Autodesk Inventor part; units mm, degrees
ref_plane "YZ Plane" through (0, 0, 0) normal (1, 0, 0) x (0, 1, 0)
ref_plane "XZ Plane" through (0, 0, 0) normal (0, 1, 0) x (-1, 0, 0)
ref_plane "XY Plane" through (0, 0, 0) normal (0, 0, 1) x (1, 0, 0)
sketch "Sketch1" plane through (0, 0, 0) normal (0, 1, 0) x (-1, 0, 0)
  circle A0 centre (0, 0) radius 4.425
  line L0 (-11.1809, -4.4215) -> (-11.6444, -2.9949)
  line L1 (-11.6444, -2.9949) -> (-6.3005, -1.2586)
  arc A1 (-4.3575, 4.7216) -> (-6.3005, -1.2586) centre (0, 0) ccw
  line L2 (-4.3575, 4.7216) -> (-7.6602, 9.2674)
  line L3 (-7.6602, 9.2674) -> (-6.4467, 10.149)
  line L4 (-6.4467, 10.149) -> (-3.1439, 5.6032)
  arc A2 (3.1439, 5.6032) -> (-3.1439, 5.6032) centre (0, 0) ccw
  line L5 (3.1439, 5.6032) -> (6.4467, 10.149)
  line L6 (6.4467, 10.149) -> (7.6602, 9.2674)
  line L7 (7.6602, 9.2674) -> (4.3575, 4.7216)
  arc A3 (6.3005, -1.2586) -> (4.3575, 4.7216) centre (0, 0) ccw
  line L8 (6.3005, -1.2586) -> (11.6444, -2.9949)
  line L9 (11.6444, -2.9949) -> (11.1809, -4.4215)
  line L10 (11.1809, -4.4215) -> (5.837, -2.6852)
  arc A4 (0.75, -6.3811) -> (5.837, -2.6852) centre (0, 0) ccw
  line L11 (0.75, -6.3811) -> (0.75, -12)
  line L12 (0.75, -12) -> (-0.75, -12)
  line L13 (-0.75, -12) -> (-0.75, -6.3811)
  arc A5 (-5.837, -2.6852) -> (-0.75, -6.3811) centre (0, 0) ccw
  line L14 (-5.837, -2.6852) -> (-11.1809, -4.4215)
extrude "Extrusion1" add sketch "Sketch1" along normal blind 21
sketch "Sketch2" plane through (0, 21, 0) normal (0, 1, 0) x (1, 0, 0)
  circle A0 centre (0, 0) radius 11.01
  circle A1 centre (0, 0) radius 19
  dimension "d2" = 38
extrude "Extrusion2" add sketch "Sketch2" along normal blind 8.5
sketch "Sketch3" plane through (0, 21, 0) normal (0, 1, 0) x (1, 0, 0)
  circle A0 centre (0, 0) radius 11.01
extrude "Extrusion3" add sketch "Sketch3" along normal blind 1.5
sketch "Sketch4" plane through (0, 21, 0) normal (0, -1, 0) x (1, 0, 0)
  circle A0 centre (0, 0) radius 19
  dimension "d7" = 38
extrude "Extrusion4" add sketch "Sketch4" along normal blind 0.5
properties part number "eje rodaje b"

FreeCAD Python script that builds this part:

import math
import FreeCAD as App
import Part
import Sketcher

V = App.Vector
Q = App.Units.Quantity

doc = App.newDocument("Part")
params = doc.addObject("Spreadsheet::Sheet", "Params")
for row, (alias, value) in enumerate([
    ("sketch1_diameter", "8.85 mm"),
    ("sketch1_width", "1.5 mm"),
    ("sketch1_length", "1.5 mm"),
    ("pad1_length", "21 mm"),
    ("sketch2_diameter", "38 mm"),
    ("sketch2_diameter2", "22.02 mm"),
    ("pad2_length", "8.5 mm"),
    ("sketch3_diameter", "22.02 mm"),
    ("pad3_length", "1.5 mm"),
    ("sketch4_diameter", "38 mm"),
    ("pad4_length", "0.5 mm"),
], start=1):
    params.set(f"A{row}", alias)
    params.set(f"B{row}", "=" + value)
    params.setAlias(f"B{row}", alias)

body = doc.addObject("PartDesign::Body", "Body")

# Sketch on XZ plane
sketch1 = doc.addObject("Sketcher::SketchObject", "Sketch")
body.addObject(sketch1)
sketch1.AttachmentSupport = (doc.XZ_Plane, [""])
sketch1.MapMode = "FlatFace"
sketch1.addGeometry(Part.LineSegment(V(11.6444, -2.9949, 0), V(11.1809, -4.4215, 0)), False)
sketch1.addGeometry(Part.LineSegment(V(11.1809, -4.4215, 0), V(5.837, -2.6852, 0)), False)
sketch1.addGeometry(Part.ArcOfCircle(Part.Circle(V(0, 0, 0), V(0, 0, 1), 6.425054), math.radians(-83.296519), math.radians(-24.703889)), False)
sketch1.addGeometry(Part.LineSegment(V(0.75, -6.3811, 0), V(0.75, -12, 0)), False)
sketch1.addGeometry(Part.LineSegment(V(0.75, -12, 0), V(-0.75, -12, 0)), False)
sketch1.addGeometry(Part.LineSegment(V(-0.75, -12, 0), V(-0.75, -6.3811, 0)), False)
sketch1.addGeometry(Part.ArcOfCircle(Part.Circle(V(0, 0, 0), V(0, 0, 1), 6.425019), math.radians(-155.296111), math.radians(-96.703481)), False)
sketch1.addGeometry(Part.LineSegment(V(-5.837, -2.6852, 0), V(-11.1809, -4.4215, 0)), False)
sketch1.addGeometry(Part.LineSegment(V(-11.1809, -4.4215, 0), V(-11.6444, -2.9949, 0)), False)
sketch1.addGeometry(Part.LineSegment(V(-11.6444, -2.9949, 0), V(-6.3005, -1.2586, 0)), False)
sketch1.addGeometry(Part.ArcOfCircle(Part.Circle(V(0, 0, 0), V(0, 0, 1), 6.425054), math.radians(132.703493), math.radians(191.296816)), False)
sketch1.addGeometry(Part.LineSegment(V(-4.3575, 4.7216, 0), V(-7.6602, 9.2674, 0)), False)
sketch1.addGeometry(Part.LineSegment(V(-7.6602, 9.2674, 0), V(-6.4467, 10.149, 0)), False)
sketch1.addGeometry(Part.LineSegment(V(-6.4467, 10.149, 0), V(-3.1439, 5.6032, 0)), False)
sketch1.addGeometry(Part.ArcOfCircle(Part.Circle(V(0, 0, 0), V(0, 0, 1), 6.424948), math.radians(60.703649), math.radians(119.296351)), False)
sketch1.addGeometry(Part.LineSegment(V(3.1439, 5.6032, 0), V(6.4467, 10.149, 0)), False)
sketch1.addGeometry(Part.LineSegment(V(6.4467, 10.149, 0), V(7.6602, 9.2674, 0)), False)
sketch1.addGeometry(Part.LineSegment(V(7.6602, 9.2674, 0), V(4.3575, 4.7216, 0)), False)
sketch1.addGeometry(Part.ArcOfCircle(Part.Circle(V(0, 0, 0), V(0, 0, 1), 6.424948), math.radians(-11.296816), math.radians(47.296507)), False)
sketch1.addGeometry(Part.LineSegment(V(6.3005, -1.2586, 0), V(11.6444, -2.9949, 0)), False)
sketch1.addGeometry(Part.Circle(V(0, 0, 0), V(0, 0, 1), 4.425), False)
sketch1.addConstraint(Sketcher.Constraint("Coincident", 0, 2, 1, 1))
sketch1.addConstraint(Sketcher.Constraint("Coincident", 1, 2, 2, 2))
sketch1.addConstraint(Sketcher.Constraint("Coincident", 2, 1, 3, 1))
sketch1.addConstraint(Sketcher.Constraint("Coincident", 3, 2, 4, 1))
sketch1.addConstraint(Sketcher.Constraint("Coincident", 4, 2, 5, 1))
sketch1.addConstraint(Sketcher.Constraint("Coincident", 5, 2, 6, 2))
sketch1.addConstraint(Sketcher.Constraint("Coincident", 6, 1, 7, 1))
sketch1.addConstraint(Sketcher.Constraint("Coincident", 7, 2, 8, 1))
sketch1.addConstraint(Sketcher.Constraint("Coincident", 8, 2, 9, 1))
sketch1.addConstraint(Sketcher.Constraint("Coincident", 9, 2, 10, 2))
sketch1.addConstraint(Sketcher.Constraint("Coincident", 10, 1, 11, 1))
sketch1.addConstraint(Sketcher.Constraint("Coincident", 11, 2, 12, 1))
sketch1.addConstraint(Sketcher.Constraint("Coincident", 12, 2, 13, 1))
sketch1.addConstraint(Sketcher.Constraint("Coincident", 13, 2, 14, 2))
sketch1.addConstraint(Sketcher.Constraint("Coincident", 14, 1, 15, 1))
sketch1.addConstraint(Sketcher.Constraint("Coincident", 15, 2, 16, 1))
sketch1.addConstraint(Sketcher.Constraint("Coincident", 16, 2, 17, 1))
sketch1.addConstraint(Sketcher.Constraint("Coincident", 17, 2, 18, 2))
sketch1.addConstraint(Sketcher.Constraint("Coincident", 18, 1, 19, 1))
sketch1.addConstraint(Sketcher.Constraint("Coincident", 19, 2, 0, 1))
sketch1.addConstraint(Sketcher.Constraint("Vertical", 3))
sketch1.addConstraint(Sketcher.Constraint("Horizontal", 4))
sketch1.addConstraint(Sketcher.Constraint("Vertical", 5))
sketch1.addConstraint(Sketcher.Constraint("Coincident", 2, 3, -1, 1))
sketch1.addConstraint(Sketcher.Constraint("Coincident", 6, 3, -1, 1))
sketch1.addConstraint(Sketcher.Constraint("Coincident", 10, 3, -1, 1))
sketch1.addConstraint(Sketcher.Constraint("Coincident", 14, 3, -1, 1))
sketch1.addConstraint(Sketcher.Constraint("Coincident", 18, 3, -1, 1))
sketch1.addConstraint(Sketcher.Constraint("Coincident", 20, 3, -1, 1))
sketch1.addConstraint(Sketcher.Constraint("Equal", 2, 6))
sketch1.addConstraint(Sketcher.Constraint("Equal", 6, 10))
sketch1.addConstraint(Sketcher.Constraint("Equal", 10, 14))
sketch1.addConstraint(Sketcher.Constraint("Equal", 14, 18))
sketch1.addConstraint(Sketcher.Constraint("Symmetric", 0, 2, 7, 2, -2))
sketch1.addConstraint(Sketcher.Constraint("Symmetric", 12, 2, 15, 2, -2))
sketch1.addConstraint(Sketcher.Constraint("Symmetric", 11, 2, 16, 2, -2))
sketch1.addConstraint(Sketcher.Constraint("Symmetric", 8, 2, 19, 2, -2))
sketch1.addConstraint(Sketcher.Constraint("Perpendicular", 0, 1))
sketch1.addConstraint(Sketcher.Constraint("Perpendicular", 7, 8))
sketch1.addConstraint(Sketcher.Constraint("Perpendicular", 8, 9))
sketch1.addConstraint(Sketcher.Constraint("Perpendicular", 11, 12))
sketch1.addConstraint(Sketcher.Constraint("Perpendicular", 12, 13))
sketch1.addConstraint(Sketcher.Constraint("Perpendicular", 15, 16))
sketch1.addConstraint(Sketcher.Constraint("Perpendicular", 16, 17))
sketch1.addConstraint(Sketcher.Constraint("Parallel", 1, 19))
sketch1.addConstraint(Sketcher.Constraint("Horizontal", 2, 1, 5, 2))
sketch1.addConstraint(Sketcher.Constraint("Equal", 7, 9))
sketch1.addConstraint(Sketcher.Constraint("Equal", 9, 11))
sketch1.addConstraint(Sketcher.Constraint("Equal", 8, 12))
sketch1.addConstraint(Sketcher.Constraint("Equal", 11, 13))
sketch1.addConstraint(Sketcher.Constraint("Diameter", 20, Q("8.85 mm")))
sketch1.addConstraint(Sketcher.Constraint("Angle", 0, Q("-107.999 deg")))
sketch1.addConstraint(Sketcher.Constraint("Angle", 11, Q("125.9999 deg")))
sketch1.addConstraint(Sketcher.Constraint("DistanceX", 4, 2, 4, 1, Q("1.5 mm")))
sketch1.addConstraint(Sketcher.Constraint("DistanceY", 3, 2, -1, 1, Q("12 mm")))
sketch1.addConstraint(Sketcher.Constraint("Radius", 2, Q("6.425 mm")))
sketch1.addConstraint(Sketcher.Constraint("Distance", 0, Q("1.5 mm")))
sketch1.addConstraint(Sketcher.Constraint("Distance", 1, Q("5.619 mm")))
sketch1.setExpression("Constraints[50]", "Params.sketch1_diameter")
sketch1.setExpression("Constraints[53]", "Params.sketch1_width")
sketch1.setExpression("Constraints[56]", "Params.sketch1_length")
pad1 = doc.addObject("PartDesign::Pad", "Pad")
body.addObject(pad1)
pad1.Profile = sketch1
pad1.setExpression("Length", "Params.pad1_length")
pad1.Reversed = True

# Sketch on XZ plane
sketch2 = doc.addObject("Sketcher::SketchObject", "Sketch001")
body.addObject(sketch2)
sketch2.AttachmentSupport = (doc.XZ_Plane, [""])
sketch2.MapMode = "FlatFace"
sketch2.AttachmentOffset = App.Placement(V(0, 0, -21), App.Rotation())
sketch2.addGeometry(Part.Circle(V(0, 0, 0), V(0, 0, 1), 19), False)
sketch2.addGeometry(Part.Circle(V(0, 0, 0), V(0, 0, 1), 11.01), False)
sketch2.addConstraint(Sketcher.Constraint("Coincident", 0, 3, -1, 1))
sketch2.addConstraint(Sketcher.Constraint("Coincident", 1, 3, -1, 1))
sketch2.addConstraint(Sketcher.Constraint("Diameter", 0, Q("38 mm")))
sketch2.addConstraint(Sketcher.Constraint("Diameter", 1, Q("22.02 mm")))
sketch2.setExpression("Constraints[2]", "Params.sketch2_diameter")
sketch2.setExpression("Constraints[3]", "Params.sketch2_diameter2")
pad2 = doc.addObject("PartDesign::Pad", "Pad001")
body.addObject(pad2)
pad2.Profile = sketch2
pad2.setExpression("Length", "Params.pad2_length")
pad2.Reversed = True

# Sketch on XZ plane
sketch3 = doc.addObject("Sketcher::SketchObject", "Sketch002")
body.addObject(sketch3)
sketch3.AttachmentSupport = (doc.XZ_Plane, [""])
sketch3.MapMode = "FlatFace"
sketch3.AttachmentOffset = App.Placement(V(0, 0, -21), App.Rotation())
sketch3.addGeometry(Part.Circle(V(0, 0, 0), V(0, 0, 1), 11.01), False)
sketch3.addConstraint(Sketcher.Constraint("Coincident", 0, 3, -1, 1))
sketch3.addConstraint(Sketcher.Constraint("Diameter", 0, Q("22.02 mm")))
sketch3.setExpression("Constraints[1]", "Params.sketch3_diameter")
pad3 = doc.addObject("PartDesign::Pad", "Pad002")
body.addObject(pad3)
pad3.Profile = sketch3
pad3.setExpression("Length", "Params.pad3_length")
pad3.Reversed = True

# Sketch on XZ plane
sketch4 = doc.addObject("Sketcher::SketchObject", "Sketch003")
body.addObject(sketch4)
sketch4.AttachmentSupport = (doc.XZ_Plane, [""])
sketch4.MapMode = "FlatFace"
sketch4.AttachmentOffset = App.Placement(V(0, 0, -21), App.Rotation())
sketch4.addGeometry(Part.Circle(V(0, 0, 0), V(0, 0, 1), 19), False)
sketch4.addConstraint(Sketcher.Constraint("Coincident", 0, 3, -1, 1))
sketch4.addConstraint(Sketcher.Constraint("Diameter", 0, Q("38 mm")))
sketch4.setExpression("Constraints[1]", "Params.sketch4_diameter")
pad4 = doc.addObject("PartDesign::Pad", "Pad003")
body.addObject(pad4)
pad4.Profile = sketch4
pad4.setExpression("Length", "Params.pad4_length")

doc.recompute()
